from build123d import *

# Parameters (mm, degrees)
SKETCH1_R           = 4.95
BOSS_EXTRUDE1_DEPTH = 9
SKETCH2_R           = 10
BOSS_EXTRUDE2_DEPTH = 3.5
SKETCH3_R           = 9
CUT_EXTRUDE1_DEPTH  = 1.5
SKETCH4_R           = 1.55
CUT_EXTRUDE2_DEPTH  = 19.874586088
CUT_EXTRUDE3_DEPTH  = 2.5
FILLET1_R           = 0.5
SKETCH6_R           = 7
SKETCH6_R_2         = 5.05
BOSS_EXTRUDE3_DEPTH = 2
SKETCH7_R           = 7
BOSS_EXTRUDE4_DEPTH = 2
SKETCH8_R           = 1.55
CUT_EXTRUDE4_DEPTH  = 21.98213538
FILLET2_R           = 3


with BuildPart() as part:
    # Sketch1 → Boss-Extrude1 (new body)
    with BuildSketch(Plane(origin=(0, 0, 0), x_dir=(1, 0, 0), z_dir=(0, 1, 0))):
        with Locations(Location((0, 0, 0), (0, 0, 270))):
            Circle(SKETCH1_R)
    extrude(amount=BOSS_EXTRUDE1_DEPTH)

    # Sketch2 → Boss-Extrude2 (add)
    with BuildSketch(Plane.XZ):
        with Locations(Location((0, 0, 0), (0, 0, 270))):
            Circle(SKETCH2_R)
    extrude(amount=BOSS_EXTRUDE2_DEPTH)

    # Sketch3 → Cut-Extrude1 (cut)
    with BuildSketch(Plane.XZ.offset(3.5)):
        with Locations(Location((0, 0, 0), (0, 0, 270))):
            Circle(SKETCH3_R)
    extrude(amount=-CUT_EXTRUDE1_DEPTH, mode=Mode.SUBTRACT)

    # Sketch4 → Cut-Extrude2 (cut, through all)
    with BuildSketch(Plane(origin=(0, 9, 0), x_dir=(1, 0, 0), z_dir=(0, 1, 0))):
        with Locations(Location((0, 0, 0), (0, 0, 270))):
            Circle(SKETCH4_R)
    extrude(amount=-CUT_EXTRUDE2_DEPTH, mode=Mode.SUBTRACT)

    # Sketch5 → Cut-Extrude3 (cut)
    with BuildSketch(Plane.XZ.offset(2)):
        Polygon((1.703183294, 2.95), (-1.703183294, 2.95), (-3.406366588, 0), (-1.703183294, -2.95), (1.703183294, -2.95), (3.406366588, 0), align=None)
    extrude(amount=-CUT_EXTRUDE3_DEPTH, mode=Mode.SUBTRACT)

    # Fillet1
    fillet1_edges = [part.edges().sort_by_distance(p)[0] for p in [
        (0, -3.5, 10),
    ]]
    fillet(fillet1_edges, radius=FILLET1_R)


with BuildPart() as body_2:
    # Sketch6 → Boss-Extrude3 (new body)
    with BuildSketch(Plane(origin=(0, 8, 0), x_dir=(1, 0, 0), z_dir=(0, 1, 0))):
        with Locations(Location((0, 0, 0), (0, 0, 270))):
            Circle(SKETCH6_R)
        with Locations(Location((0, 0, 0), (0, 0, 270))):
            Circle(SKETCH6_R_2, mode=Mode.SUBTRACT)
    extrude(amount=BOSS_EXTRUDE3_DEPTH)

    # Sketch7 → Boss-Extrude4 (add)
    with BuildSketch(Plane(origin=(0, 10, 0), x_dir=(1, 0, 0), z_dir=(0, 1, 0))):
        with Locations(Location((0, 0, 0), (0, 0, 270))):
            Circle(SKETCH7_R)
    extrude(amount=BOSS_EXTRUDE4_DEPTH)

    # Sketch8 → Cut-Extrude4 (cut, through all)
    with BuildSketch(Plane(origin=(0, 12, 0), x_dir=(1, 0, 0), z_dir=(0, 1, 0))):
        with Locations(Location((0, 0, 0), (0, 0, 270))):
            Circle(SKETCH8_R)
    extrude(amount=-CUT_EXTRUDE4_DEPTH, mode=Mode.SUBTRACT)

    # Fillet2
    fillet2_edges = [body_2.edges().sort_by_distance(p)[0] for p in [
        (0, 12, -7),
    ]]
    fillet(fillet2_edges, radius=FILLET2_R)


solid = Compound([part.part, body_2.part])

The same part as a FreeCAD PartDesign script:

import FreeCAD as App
import Part
import Sketcher
Q = App.Units.Quantity


def edges_at(feature, points):
    """Names of the edges that pass closest to the given points."""
    edges = feature.Shape.Edges
    near = lambda p: min(range(len(edges)), key=lambda i: edges[i].distToShape(Part.Vertex(*p))[0])
    return sorted({f"Edge{near(p) + 1}" for p in points})

doc = App.newDocument("Part")
body = doc.addObject("PartDesign::Body", "Body")

# Sketch on XZ plane
sketch1 = body.newObject("Sketcher::SketchObject", "Sketch")
sketch1.AttachmentSupport = (doc.getObject("XZ_Plane"), [""])
sketch1.MapMode = "FlatFace"
sketch1.addGeometry(Part.Circle(App.Vector(0, 0, 0), App.Vector(0, 0, 1), 4.95), False)
sketch1.addConstraint([
    Sketcher.Constraint("Coincident", 0, 3, -1, 1),
    Sketcher.Constraint("Diameter", 0, Q("9.9 mm")),
])
pad1 = body.newObject("PartDesign::Pad", "Pad")
pad1.Profile = sketch1
pad1.Length = 9
pad1.Reversed = True

# Sketch on XZ plane
sketch2 = body.newObject("Sketcher::SketchObject", "Sketch001")
sketch2.AttachmentSupport = (doc.getObject("XZ_Plane"), [""])
sketch2.MapMode = "FlatFace"
sketch2.addGeometry(Part.Circle(App.Vector(0, 0, 0), App.Vector(0, 0, 1), 10), False)
sketch2.addConstraint([
    Sketcher.Constraint("Coincident", 0, 3, -1, 1),
    Sketcher.Constraint("Diameter", 0, Q("20 mm")),
])
pad2 = body.newObject("PartDesign::Pad", "Pad001")
pad2.Profile = sketch2
pad2.Length = 3.5

# Sketch on XZ plane
sketch3 = body.newObject("Sketcher::SketchObject", "Sketch002")
sketch3.AttachmentSupport = (doc.getObject("XZ_Plane"), [""])
sketch3.MapMode = "FlatFace"
sketch3.AttachmentOffset = App.Placement(App.Vector(0, 0, 3.5), App.Rotation())
sketch3.addGeometry(Part.Circle(App.Vector(0, 0, 0), App.Vector(0, 0, 1), 9), False)
sketch3.addConstraint([
    Sketcher.Constraint("Coincident", 0, 3, -1, 1),
    Sketcher.Constraint("Diameter", 0, Q("18 mm")),
])
pocket1 = body.newObject("PartDesign::Pocket", "Pocket")
pocket1.Profile = sketch3
pocket1.Length = 1.5

# Sketch on XZ plane
sketch4 = body.newObject("Sketcher::SketchObject", "Sketch003")
sketch4.AttachmentSupport = (doc.getObject("XZ_Plane"), [""])
sketch4.MapMode = "FlatFace"
sketch4.AttachmentOffset = App.Placement(App.Vector(0, 0, -9), App.Rotation())
sketch4.addGeometry(Part.Circle(App.Vector(0, 0, 0), App.Vector(0, 0, 1), 1.55), False)
sketch4.addConstraint([
    Sketcher.Constraint("Coincident", 0, 3, -1, 1),
    Sketcher.Constraint("Diameter", 0, Q("3.1 mm")),
])
pocket2 = body.newObject("PartDesign::Pocket", "Pocket001")
pocket2.Profile = sketch4
pocket2.Type = "ThroughAll"
pocket2.Reversed = True

# Sketch on XZ plane
sketch5 = body.newObject("Sketcher::SketchObject", "Sketch004")
sketch5.AttachmentSupport = (doc.getObject("XZ_Plane"), [""])
sketch5.MapMode = "FlatFace"
sketch5.AttachmentOffset = App.Placement(App.Vector(0, 0, 2), App.Rotation())
sketch5.addGeometry([
    Part.LineSegment(App.Vector(1.703183, 2.95, 0), App.Vector(-1.703183, 2.95, 0)),  # 0
    Part.LineSegment(App.Vector(-1.703183, 2.95, 0), App.Vector(-3.406367, 0, 0)),  # 1
    Part.LineSegment(App.Vector(-3.406367, 0, 0), App.Vector(-1.703183, -2.95, 0)),  # 2
    Part.LineSegment(App.Vector(-1.703183, -2.95, 0), App.Vector(1.703183, -2.95, 0)),  # 3
    Part.LineSegment(App.Vector(1.703183, -2.95, 0), App.Vector(3.406367, 0, 0)),  # 4
    Part.LineSegment(App.Vector(3.406367, 0, 0), App.Vector(1.703183, 2.95, 0)),  # 5
], False)
sketch5.addConstraint([
    Sketcher.Constraint("Coincident", 0, 2, 1, 1),
    Sketcher.Constraint("Coincident", 1, 2, 2, 1),
    Sketcher.Constraint("Coincident", 2, 2, 3, 1),
    Sketcher.Constraint("Coincident", 3, 2, 4, 1),
    Sketcher.Constraint("Coincident", 4, 2, 5, 1),
    Sketcher.Constraint("Coincident", 5, 2, 0, 1),
    Sketcher.Constraint("Horizontal", 0),
    Sketcher.Constraint("Horizontal", 3),
    Sketcher.Constraint("Symmetric", 0, 2, 3, 2, -1, 1),
    Sketcher.Constraint("Symmetric", 1, 2, 4, 2, -1, 1),
    Sketcher.Constraint("PointOnObject", 1, 2, -1),
    Sketcher.Constraint("Parallel", 2, 5),
    Sketcher.Constraint("Vertical", 0, 2, 2, 2),
    Sketcher.Constraint("Angle", 1, Q("-120 deg")),
    Sketcher.Constraint("DistanceY", 2, 2, 0, 2, Q("5.9 mm")),
    Sketcher.Constraint("DistanceX", 0, 2, 0, 1, Q("3.406367 mm")),
])
pocket3 = body.newObject("PartDesign::Pocket", "Pocket002")
pocket3.Profile = sketch5
pocket3.Length = 2.5
doc.recompute()

fillet = body.newObject("PartDesign::Fillet", "Fillet")
fillet.Base = (pocket3, edges_at(pocket3, [(0, -3.5, 10)]))
fillet.Radius = 0.5
body2 = doc.addObject("PartDesign::Body", "Body001")

# Sketch on XZ plane
sketch6 = body2.newObject("Sketcher::SketchObject", "Sketch005")
sketch6.AttachmentSupport = (doc.getObject("XZ_Plane001"), [""])
sketch6.MapMode = "FlatFace"
sketch6.AttachmentOffset = App.Placement(App.Vector(0, 0, -8), App.Rotation())
sketch6.addGeometry([
    Part.Circle(App.Vector(0, 0, 0), App.Vector(0, 0, 1), 7),
    Part.Circle(App.Vector(0, 0, 0), App.Vector(0, 0, 1), 5.05),
], False)
sketch6.addConstraint([
    Sketcher.Constraint("Coincident", 0, 3, -1, 1),
    Sketcher.Constraint("Coincident", 1, 3, -1, 1),
    Sketcher.Constraint("Diameter", 0, Q("14 mm")),
    Sketcher.Constraint("Diameter", 1, Q("10.1 mm")),
])
pad3 = body2.newObject("PartDesign::Pad", "Pad002")
pad3.Profile = sketch6
pad3.Length = 2
pad3.Reversed = True

# Sketch on XZ plane
sketch7 = body2.newObject("Sketcher::SketchObject", "Sketch006")
sketch7.AttachmentSupport = (doc.getObject("XZ_Plane001"), [""])
sketch7.MapMode = "FlatFace"
sketch7.AttachmentOffset = App.Placement(App.Vector(0, 0, -10), App.Rotation())
sketch7.addGeometry(Part.Circle(App.Vector(0, 0, 0), App.Vector(0, 0, 1), 7), False)
sketch7.addConstraint([
    Sketcher.Constraint("Coincident", 0, 3, -1, 1),
    Sketcher.Constraint("Diameter", 0, Q("14 mm")),
])
pad4 = body2.newObject("PartDesign::Pad", "Pad003")
pad4.Profile = sketch7
pad4.Length = 2
pad4.Reversed = True

# Sketch on XZ plane
sketch8 = body2.newObject("Sketcher::SketchObject", "Sketch007")
sketch8.AttachmentSupport = (doc.getObject("XZ_Plane001"), [""])
sketch8.MapMode = "FlatFace"
sketch8.AttachmentOffset = App.Placement(App.Vector(0, 0, -12), App.Rotation())
sketch8.addGeometry(Part.Circle(App.Vector(0, 0, 0), App.Vector(0, 0, 1), 1.55), False)
sketch8.addConstraint([
    Sketcher.Constraint("Coincident", 0, 3, -1, 1),
    Sketcher.Constraint("Diameter", 0, Q("3.1 mm")),
])
pocket4 = body2.newObject("PartDesign::Pocket", "Pocket003")
pocket4.Profile = sketch8
pocket4.Type = "ThroughAll"
pocket4.Reversed = True
doc.recompute()

fillet2 = body2.newObject("PartDesign::Fillet", "Fillet001")
fillet2.Base = (pocket4, edges_at(pocket4, [(0, 12, -7)]))
fillet2.Radius = 3

doc.recompute()
